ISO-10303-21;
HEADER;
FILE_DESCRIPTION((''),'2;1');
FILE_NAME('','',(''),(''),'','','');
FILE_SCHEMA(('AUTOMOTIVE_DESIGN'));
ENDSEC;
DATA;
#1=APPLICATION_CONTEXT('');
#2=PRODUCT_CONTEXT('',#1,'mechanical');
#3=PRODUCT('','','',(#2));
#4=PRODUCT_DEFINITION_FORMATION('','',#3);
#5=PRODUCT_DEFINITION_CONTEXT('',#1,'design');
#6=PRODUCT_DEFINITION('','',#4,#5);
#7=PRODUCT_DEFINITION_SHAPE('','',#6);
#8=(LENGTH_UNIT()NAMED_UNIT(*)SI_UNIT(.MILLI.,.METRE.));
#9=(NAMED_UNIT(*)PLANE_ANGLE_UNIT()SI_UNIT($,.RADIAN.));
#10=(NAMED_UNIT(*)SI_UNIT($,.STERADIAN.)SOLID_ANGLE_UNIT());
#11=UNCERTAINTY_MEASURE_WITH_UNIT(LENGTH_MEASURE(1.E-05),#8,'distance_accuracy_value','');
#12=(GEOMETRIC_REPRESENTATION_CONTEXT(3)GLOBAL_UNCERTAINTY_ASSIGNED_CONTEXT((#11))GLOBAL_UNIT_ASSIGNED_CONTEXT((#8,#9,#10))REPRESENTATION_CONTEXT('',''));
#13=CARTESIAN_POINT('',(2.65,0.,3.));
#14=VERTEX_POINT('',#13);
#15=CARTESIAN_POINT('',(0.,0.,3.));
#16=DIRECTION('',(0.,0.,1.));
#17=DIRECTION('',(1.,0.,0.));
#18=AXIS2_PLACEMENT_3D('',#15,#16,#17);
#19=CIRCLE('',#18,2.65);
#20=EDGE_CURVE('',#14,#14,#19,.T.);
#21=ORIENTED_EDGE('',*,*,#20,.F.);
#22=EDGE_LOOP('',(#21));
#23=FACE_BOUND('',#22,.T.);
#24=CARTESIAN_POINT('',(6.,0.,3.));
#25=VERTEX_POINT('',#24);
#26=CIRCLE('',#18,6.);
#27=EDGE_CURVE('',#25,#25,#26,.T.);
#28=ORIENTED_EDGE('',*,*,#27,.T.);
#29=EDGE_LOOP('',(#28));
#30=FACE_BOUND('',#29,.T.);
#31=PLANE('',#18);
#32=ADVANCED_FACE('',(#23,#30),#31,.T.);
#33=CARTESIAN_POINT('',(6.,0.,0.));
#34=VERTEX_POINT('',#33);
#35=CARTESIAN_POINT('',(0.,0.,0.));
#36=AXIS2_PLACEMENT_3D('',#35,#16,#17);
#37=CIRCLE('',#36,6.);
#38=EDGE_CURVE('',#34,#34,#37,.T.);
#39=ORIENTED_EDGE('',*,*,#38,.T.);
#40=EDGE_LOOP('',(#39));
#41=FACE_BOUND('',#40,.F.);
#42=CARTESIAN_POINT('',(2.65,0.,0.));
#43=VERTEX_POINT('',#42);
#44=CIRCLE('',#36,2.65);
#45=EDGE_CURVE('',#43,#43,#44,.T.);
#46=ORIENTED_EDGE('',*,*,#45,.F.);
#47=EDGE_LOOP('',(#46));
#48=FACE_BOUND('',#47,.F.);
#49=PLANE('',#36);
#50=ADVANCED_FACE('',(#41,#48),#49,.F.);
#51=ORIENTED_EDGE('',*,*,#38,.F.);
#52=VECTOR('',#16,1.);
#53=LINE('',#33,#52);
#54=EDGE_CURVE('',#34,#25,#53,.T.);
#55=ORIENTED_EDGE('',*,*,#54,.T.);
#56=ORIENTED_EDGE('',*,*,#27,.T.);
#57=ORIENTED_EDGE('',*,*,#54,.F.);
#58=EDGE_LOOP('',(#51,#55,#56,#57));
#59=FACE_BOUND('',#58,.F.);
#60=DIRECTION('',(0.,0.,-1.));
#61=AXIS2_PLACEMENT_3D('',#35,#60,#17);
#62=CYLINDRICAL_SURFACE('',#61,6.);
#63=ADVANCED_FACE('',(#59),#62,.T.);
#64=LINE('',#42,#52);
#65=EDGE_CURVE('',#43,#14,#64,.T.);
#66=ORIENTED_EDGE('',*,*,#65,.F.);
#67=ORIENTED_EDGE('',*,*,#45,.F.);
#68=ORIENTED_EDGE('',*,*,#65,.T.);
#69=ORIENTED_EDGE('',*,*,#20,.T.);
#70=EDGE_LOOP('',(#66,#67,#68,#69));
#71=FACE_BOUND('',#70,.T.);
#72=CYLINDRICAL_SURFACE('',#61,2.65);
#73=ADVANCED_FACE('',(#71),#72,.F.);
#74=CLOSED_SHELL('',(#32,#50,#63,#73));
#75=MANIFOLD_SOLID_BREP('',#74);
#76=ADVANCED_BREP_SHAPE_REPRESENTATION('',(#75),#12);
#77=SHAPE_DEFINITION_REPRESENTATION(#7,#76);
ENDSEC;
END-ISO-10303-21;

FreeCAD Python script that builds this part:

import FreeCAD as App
import Part
import Sketcher
from FreeCAD import Vector

doc = App.newDocument("Part")
body = doc.addObject("PartDesign::Body", "Body")

# Sketch on XY plane
sketch1 = body.newObject("Sketcher::SketchObject", "Sketch")
sketch1.AttachmentSupport = (doc.getObject("XY_Plane"), [""])
sketch1.MapMode = "FlatFace"
sketch1.addGeometry(Part.Circle(Vector(0, 0, 0), Vector(0, 0, 1), 6), False)
sketch1.addGeometry(Part.Circle(Vector(0, 0, 0), Vector(0, 0, 1), 2.6), False)
sketch1.addConstraint(Sketcher.Constraint("Coincident", 0, 3, -1, 1))
sketch1.addConstraint(Sketcher.Constraint("Coincident", 1, 3, -1, 1))
sketch1.addConstraint(Sketcher.Constraint("Diameter", 0, 12.0))
sketch1.addConstraint(Sketcher.Constraint("Diameter", 1, 5.3))
pad1 = body.newObject("PartDesign::Pad", "Pad")
pad1.Profile = sketch1
pad1.Length = 3

doc.recompute()
